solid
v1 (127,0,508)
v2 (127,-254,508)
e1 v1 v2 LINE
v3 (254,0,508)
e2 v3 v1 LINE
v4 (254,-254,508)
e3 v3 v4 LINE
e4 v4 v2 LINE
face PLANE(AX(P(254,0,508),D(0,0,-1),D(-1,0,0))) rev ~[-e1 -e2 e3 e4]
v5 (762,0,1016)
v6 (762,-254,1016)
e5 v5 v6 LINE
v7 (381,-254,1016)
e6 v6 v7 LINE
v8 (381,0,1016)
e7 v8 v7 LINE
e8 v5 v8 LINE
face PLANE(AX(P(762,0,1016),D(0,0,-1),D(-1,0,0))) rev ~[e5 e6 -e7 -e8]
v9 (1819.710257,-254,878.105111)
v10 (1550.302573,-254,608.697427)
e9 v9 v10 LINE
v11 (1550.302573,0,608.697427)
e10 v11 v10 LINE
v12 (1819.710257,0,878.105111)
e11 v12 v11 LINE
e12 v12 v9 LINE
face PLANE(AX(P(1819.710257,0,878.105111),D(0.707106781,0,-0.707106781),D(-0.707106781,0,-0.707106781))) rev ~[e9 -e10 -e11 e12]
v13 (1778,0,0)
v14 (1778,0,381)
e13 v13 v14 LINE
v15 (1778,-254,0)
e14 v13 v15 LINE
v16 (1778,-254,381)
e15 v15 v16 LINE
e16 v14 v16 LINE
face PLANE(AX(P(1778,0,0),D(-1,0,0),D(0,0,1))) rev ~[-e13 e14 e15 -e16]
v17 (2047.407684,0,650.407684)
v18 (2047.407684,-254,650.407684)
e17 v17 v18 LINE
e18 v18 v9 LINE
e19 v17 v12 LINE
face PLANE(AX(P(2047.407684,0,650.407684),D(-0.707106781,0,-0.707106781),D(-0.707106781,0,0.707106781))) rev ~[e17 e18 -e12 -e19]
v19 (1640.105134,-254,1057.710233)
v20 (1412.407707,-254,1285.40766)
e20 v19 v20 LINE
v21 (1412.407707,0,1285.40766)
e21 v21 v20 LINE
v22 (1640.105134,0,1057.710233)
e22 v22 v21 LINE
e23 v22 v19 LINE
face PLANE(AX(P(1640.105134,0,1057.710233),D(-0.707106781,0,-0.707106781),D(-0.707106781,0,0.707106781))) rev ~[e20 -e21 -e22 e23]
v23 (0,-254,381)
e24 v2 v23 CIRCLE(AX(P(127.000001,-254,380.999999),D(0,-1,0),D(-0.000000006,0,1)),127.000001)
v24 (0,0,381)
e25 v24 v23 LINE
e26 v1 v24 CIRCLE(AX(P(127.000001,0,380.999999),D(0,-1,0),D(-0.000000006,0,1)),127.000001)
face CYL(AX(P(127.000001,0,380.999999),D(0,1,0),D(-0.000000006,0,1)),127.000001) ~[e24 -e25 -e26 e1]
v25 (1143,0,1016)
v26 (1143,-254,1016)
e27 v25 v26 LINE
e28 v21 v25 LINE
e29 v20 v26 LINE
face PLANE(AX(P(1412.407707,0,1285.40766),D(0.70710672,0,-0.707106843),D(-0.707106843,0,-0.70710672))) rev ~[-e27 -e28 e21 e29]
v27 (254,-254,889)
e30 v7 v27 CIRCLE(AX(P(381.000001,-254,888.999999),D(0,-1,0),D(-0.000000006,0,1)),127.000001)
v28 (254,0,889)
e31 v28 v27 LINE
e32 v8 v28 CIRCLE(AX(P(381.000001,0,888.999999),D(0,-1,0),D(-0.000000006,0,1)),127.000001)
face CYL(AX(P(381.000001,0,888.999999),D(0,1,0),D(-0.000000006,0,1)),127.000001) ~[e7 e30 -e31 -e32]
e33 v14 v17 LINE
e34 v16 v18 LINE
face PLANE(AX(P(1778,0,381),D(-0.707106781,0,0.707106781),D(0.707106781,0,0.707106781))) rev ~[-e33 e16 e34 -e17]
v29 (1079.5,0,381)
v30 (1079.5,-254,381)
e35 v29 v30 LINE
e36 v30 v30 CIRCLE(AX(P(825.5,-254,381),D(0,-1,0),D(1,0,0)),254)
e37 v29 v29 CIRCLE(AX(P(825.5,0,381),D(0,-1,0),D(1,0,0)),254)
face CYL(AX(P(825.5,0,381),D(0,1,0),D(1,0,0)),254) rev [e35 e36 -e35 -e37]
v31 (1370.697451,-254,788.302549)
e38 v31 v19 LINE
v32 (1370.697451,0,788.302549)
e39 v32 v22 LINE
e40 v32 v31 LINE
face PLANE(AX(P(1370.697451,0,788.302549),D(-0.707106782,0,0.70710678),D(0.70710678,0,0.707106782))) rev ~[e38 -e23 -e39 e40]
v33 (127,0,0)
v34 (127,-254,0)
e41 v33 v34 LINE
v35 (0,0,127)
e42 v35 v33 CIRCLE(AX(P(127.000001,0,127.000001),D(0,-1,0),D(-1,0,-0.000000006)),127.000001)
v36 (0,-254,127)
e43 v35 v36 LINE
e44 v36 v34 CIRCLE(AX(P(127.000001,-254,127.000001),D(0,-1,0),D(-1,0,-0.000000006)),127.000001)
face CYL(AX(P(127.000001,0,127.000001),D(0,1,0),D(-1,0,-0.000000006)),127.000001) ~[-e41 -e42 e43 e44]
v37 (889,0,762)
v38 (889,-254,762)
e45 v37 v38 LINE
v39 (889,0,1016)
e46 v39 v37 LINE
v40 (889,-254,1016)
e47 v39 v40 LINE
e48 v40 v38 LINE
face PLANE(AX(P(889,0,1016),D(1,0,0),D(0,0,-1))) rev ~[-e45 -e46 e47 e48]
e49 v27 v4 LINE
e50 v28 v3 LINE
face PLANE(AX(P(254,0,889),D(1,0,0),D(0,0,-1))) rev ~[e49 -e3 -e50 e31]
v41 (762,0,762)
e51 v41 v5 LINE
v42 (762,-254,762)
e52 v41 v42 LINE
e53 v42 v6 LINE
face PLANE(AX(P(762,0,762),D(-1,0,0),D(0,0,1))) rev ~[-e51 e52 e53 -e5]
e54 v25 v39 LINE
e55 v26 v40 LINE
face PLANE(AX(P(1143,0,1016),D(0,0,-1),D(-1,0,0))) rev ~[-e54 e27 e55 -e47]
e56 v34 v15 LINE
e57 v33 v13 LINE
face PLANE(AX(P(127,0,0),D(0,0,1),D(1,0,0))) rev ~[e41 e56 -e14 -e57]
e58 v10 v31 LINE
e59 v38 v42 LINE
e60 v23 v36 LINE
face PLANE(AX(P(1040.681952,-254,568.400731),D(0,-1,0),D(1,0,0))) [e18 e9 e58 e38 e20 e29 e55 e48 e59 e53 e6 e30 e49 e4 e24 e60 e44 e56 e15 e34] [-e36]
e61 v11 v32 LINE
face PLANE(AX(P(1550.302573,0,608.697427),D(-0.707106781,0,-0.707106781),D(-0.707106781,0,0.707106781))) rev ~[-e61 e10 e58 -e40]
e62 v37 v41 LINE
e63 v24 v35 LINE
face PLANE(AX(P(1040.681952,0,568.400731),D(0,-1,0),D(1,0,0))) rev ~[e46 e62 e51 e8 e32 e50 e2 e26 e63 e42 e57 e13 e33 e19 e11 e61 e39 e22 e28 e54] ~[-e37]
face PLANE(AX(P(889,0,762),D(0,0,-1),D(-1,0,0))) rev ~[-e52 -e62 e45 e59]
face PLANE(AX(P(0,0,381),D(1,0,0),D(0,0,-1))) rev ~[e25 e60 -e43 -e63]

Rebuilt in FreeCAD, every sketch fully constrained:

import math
import FreeCAD as App
import Part
import Sketcher

V = App.Vector
Q = App.Units.Quantity

doc = App.newDocument("Part")
params = doc.addObject("Spreadsheet::Sheet", "Params")
for row, (alias, value) in enumerate([
    ("sketch1_diameter", "20 in"),
    ("sketch1_radius", "5 in"),
    ("sketch1_radius2", "5 in"),
    ("sketch1_radius3", "5 in"),
    ("sketch1_width", "65 in"),
    ("pad1_length", "10 in"),
], start=1):
    params.set(f"A{row}", alias)
    params.set(f"B{row}", "=" + value)
    params.setAlias(f"B{row}", alias)

body = doc.addObject("PartDesign::Body", "Body")

# Sketch on XZ plane
sketch1 = body.newObject("Sketcher::SketchObject", "Sketch")
sketch1.AttachmentSupport = (doc.getObject("XZ_Plane"), [""])
sketch1.MapMode = "FlatFace"
sketch1.addGeometry([
    Part.ArcOfCircle(Part.Circle(V(127.000001, 127.000001, 0), V(0, 0, 1), 127.000001), math.radians(-180), math.radians(-90)),  # 0
    Part.LineSegment(V(127, 0, 0), V(1778, 0, 0)),  # 1
    Part.LineSegment(V(1778, 0, 0), V(1778, 381, 0)),  # 2
    Part.LineSegment(V(1778, 381, 0), V(2047.407684, 650.407684, 0)),  # 3
    Part.LineSegment(V(2047.407684, 650.407684, 0), V(1819.710257, 878.105111, 0)),  # 4
    Part.LineSegment(V(1819.710257, 878.105111, 0), V(1550.302573, 608.697427, 0)),  # 5
    Part.LineSegment(V(1550.302573, 608.697427, 0), V(1370.697451, 788.302549, 0)),  # 6
    Part.LineSegment(V(1370.697451, 788.302549, 0), V(1640.105134, 1057.710233, 0)),  # 7
    Part.LineSegment(V(1640.105134, 1057.710233, 0), V(1412.407707, 1285.40766, 0)),  # 8
    Part.LineSegment(V(1412.407707, 1285.40766, 0), V(1143, 1016, 0)),  # 9
    Part.LineSegment(V(1143, 1016, 0), V(889, 1016, 0)),  # 10
    Part.LineSegment(V(889, 1016, 0), V(889, 762, 0)),  # 11
    Part.LineSegment(V(889, 762, 0), V(762, 762, 0)),  # 12
    Part.LineSegment(V(762, 762, 0), V(762, 1016, 0)),  # 13
    Part.LineSegment(V(762, 1016, 0), V(381, 1016, 0)),  # 14
    Part.ArcOfCircle(Part.Circle(V(381.000001, 888.999999, 0), V(0, 0, 1), 127.000001), math.radians(90), math.radians(180)),  # 15
    Part.LineSegment(V(254, 889, 0), V(254, 508, 0)),  # 16
    Part.LineSegment(V(254, 508, 0), V(127, 508, 0)),  # 17
    Part.ArcOfCircle(Part.Circle(V(127.000001, 380.999999, 0), V(0, 0, 1), 127.000001), math.radians(90), math.radians(180)),  # 18
    Part.LineSegment(V(0, 381, 0), V(0, 127, 0)),  # 19
    Part.Circle(V(825.5, 381, 0), V(0, 0, 1), 254),  # 20
], False)
sketch1.addConstraint([
    Sketcher.Constraint("Coincident", 0, 2, 1, 1),
    Sketcher.Constraint("Coincident", 1, 2, 2, 1),
    Sketcher.Constraint("Coincident", 2, 2, 3, 1),
    Sketcher.Constraint("Coincident", 3, 2, 4, 1),
    Sketcher.Constraint("Coincident", 4, 2, 5, 1),
    Sketcher.Constraint("Coincident", 5, 2, 6, 1),
    Sketcher.Constraint("Coincident", 6, 2, 7, 1),
    Sketcher.Constraint("Coincident", 7, 2, 8, 1),
    Sketcher.Constraint("Coincident", 8, 2, 9, 1),
    Sketcher.Constraint("Coincident", 9, 2, 10, 1),
    Sketcher.Constraint("Coincident", 10, 2, 11, 1),
    Sketcher.Constraint("Coincident", 11, 2, 12, 1),
    Sketcher.Constraint("Coincident", 12, 2, 13, 1),
    Sketcher.Constraint("Coincident", 13, 2, 14, 1),
    Sketcher.Constraint("Coincident", 14, 2, 15, 1),
    Sketcher.Constraint("Coincident", 15, 2, 16, 1),
    Sketcher.Constraint("Coincident", 16, 2, 17, 1),
    Sketcher.Constraint("Coincident", 17, 2, 18, 1),
    Sketcher.Constraint("Coincident", 18, 2, 19, 1),
    Sketcher.Constraint("Coincident", 19, 2, 0, 1),
    Sketcher.Constraint("Horizontal", 1),
    Sketcher.Constraint("Vertical", 2),
    Sketcher.Constraint("Horizontal", 10),
    Sketcher.Constraint("Vertical", 11),
    Sketcher.Constraint("Horizontal", 12),
    Sketcher.Constraint("Vertical", 13),
    Sketcher.Constraint("Horizontal", 14),
    Sketcher.Constraint("Vertical", 16),
    Sketcher.Constraint("Horizontal", 17),
    Sketcher.Constraint("Vertical", 19),
    Sketcher.Constraint("PointOnObject", 0, 2, -1),
    Sketcher.Constraint("PointOnObject", 18, 2, -2),
    Sketcher.Constraint("Diameter", 20, Q("20 in")),
    Sketcher.Constraint("Radius", 0, Q("5 in")),
    Sketcher.Constraint("Radius", 15, Q("5 in")),
    Sketcher.Constraint("Radius", 18, Q("5 in")),
    Sketcher.Constraint("DistanceX", 1, 1, 1, 2, Q("65 in")),
    Sketcher.Constraint("DistanceX", 10, 2, 10, 1, Q("10 in")),
    Sketcher.Constraint("DistanceX", 12, 2, 12, 1, Q("5 in")),
    Sketcher.Constraint("DistanceX", 14, 2, 14, 1, Q("15 in")),
    Sketcher.Constraint("DistanceX", 17, 2, 17, 1, Q("5 in")),
    Sketcher.Constraint("DistanceY", 2, 1, 2, 2, Q("15 in")),
    Sketcher.Constraint("DistanceY", 11, 2, 11, 1, Q("10 in")),
    Sketcher.Constraint("DistanceY", 13, 1, 13, 2, Q("10 in")),
    Sketcher.Constraint("DistanceY", 16, 2, 16, 1, Q("15 in")),
    Sketcher.Constraint("DistanceY", 19, 2, 19, 1, Q("10 in")),
    Sketcher.Constraint("Distance", 3, Q("15 in")),
    Sketcher.Constraint("Distance", 5, Q("15 in")),
    Sketcher.Constraint("Distance", 6, Q("10 in")),
    Sketcher.Constraint("Distance", 7, Q("15 in")),
    Sketcher.Constraint("Distance", 9, Q("15 in")),
    Sketcher.Constraint("DistanceX", -1, 1, 15, 3, Q("15 in")),
    Sketcher.Constraint("DistanceY", -1, 1, 15, 3, Q("35 in")),
    Sketcher.Constraint("DistanceY", -1, 1, 18, 3, Q("15 in")),
    Sketcher.Constraint("DistanceY", -1, 1, 20, 3, Q("15 in")),
    Sketcher.Constraint("DistanceX", -1, 1, 0, 2, Q("5 in")),
    Sketcher.Constraint("DistanceX", -1, 1, 9, 2, Q("45 in")),
    Sketcher.Constraint("DistanceY", -1, 1, 18, 2, Q("15 in")),
    Sketcher.Constraint("DistanceX", -1, 1, 20, 3, Q("32.5 in")),
    Sketcher.Constraint("Distance", 4, 322.012789),
    Sketcher.Constraint("Distance", 8, 322.012789),
    Sketcher.Constraint("DistanceY", -1, 1, 4, 2, 878.105111),
    Sketcher.Constraint("DistanceX", -1, 1, 6, 2, 1370.697451),
    Sketcher.Constraint("DistanceY", -1, 1, 6, 2, 788.302549),
    Sketcher.Constraint("DistanceY", -1, 1, 8, 2, 1285.40766),
    Sketcher.Constraint("DistanceX", 6, 2, 5, 2, 179.605122),
])
sketch1.setExpression("Constraints[32]", "Params.sketch1_diameter")
sketch1.setExpression("Constraints[33]", "Params.sketch1_radius")
sketch1.setExpression("Constraints[34]", "Params.sketch1_radius2")
sketch1.setExpression("Constraints[35]", "Params.sketch1_radius3")
sketch1.setExpression("Constraints[36]", "Params.sketch1_width")
pad1 = body.newObject("PartDesign::Pad", "Pad")
pad1.Profile = sketch1
pad1.setExpression("Length", "Params.pad1_length")

doc.recompute()
